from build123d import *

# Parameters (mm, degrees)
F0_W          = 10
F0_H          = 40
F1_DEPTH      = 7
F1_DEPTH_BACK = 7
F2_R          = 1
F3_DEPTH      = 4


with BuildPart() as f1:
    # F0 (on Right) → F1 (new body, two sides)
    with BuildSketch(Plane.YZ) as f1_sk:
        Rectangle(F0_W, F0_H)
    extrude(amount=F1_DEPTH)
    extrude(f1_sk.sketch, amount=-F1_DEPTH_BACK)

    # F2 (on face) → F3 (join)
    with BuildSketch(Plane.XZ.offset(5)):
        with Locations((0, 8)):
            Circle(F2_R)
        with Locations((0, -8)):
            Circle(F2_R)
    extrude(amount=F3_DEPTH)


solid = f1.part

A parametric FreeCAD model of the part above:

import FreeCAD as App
import Part
import Sketcher
from FreeCAD import Vector

doc = App.newDocument("Part")
params = doc.addObject("Spreadsheet::Sheet", "Params")
for row, (alias, value) in enumerate([
    ("sketch1_width", "10 mm"),
    ("sketch1_height", "40 mm"),
    ("pad1_length", "7 mm"),
    ("pad1_length2", "7 mm"),
    ("sketch2_diameter", "2 mm"),
    ("pad2_length", "4 mm"),
], start=1):
    params.set(f"A{row}", alias)
    params.set(f"B{row}", "=" + value)
    params.setAlias(f"B{row}", alias)

body = doc.addObject("PartDesign::Body", "Body")

# Sketch on YZ plane
sketch1 = body.newObject("Sketcher::SketchObject", "Sketch")
sketch1.AttachmentSupport = (doc.getObject("YZ_Plane"), [""])
sketch1.MapMode = "FlatFace"
sketch1.addGeometry([
    Part.LineSegment(Vector(-5, 20, 0), Vector(-5, -20, 0)),
    Part.LineSegment(Vector(-5, -20, 0), Vector(5, -20, 0)),
    Part.LineSegment(Vector(5, -20, 0), Vector(5, 20, 0)),
    Part.LineSegment(Vector(5, 20, 0), Vector(-5, 20, 0)),
], False)
sketch1.addConstraint([
    Sketcher.Constraint("Coincident", 0, 2, 1, 1),
    Sketcher.Constraint("Coincident", 1, 2, 2, 1),
    Sketcher.Constraint("Coincident", 2, 2, 3, 1),
    Sketcher.Constraint("Coincident", 3, 2, 0, 1),
    Sketcher.Constraint("Vertical", 0),
    Sketcher.Constraint("Horizontal", 1),
    Sketcher.Constraint("Vertical", 2),
    Sketcher.Constraint("Horizontal", 3),
    Sketcher.Constraint("Symmetric", 0, 2, 2, 2, -1, 1),
    Sketcher.Constraint("DistanceX", 1, 1, 1, 2, 10.0),
    Sketcher.Constraint("DistanceY", 0, 2, 0, 1, 40.0),
])
sketch1.setExpression("Constraints[9]", "Params.sketch1_width")
sketch1.setExpression("Constraints[10]", "Params.sketch1_height")
pad1 = body.newObject("PartDesign::Pad", "Pad")
pad1.Profile = sketch1
pad1.Type = "TwoLengths"
pad1.setExpression("Length", "Params.pad1_length")
pad1.setExpression("Length2", "Params.pad1_length2")

# Sketch on XZ plane
sketch2 = body.newObject("Sketcher::SketchObject", "Sketch001")
sketch2.AttachmentSupport = (doc.getObject("XZ_Plane"), [""])
sketch2.MapMode = "FlatFace"
sketch2.AttachmentOffset = App.Placement(Vector(0, 0, 5), App.Rotation())
sketch2.addGeometry([
    Part.Circle(Vector(0, 8, 0), Vector(0, 0, 1), 1),
    Part.Circle(Vector(0, -8, 0), Vector(0, 0, 1), 1),
], False)
sketch2.addConstraint([
    Sketcher.Constraint("Equal", 0, 1),
    Sketcher.Constraint("Symmetric", 0, 3, 1, 3, -1, 1),
    Sketcher.Constraint("PointOnObject", 0, 3, -2),
    Sketcher.Constraint("Diameter", 0, 2.0),
    Sketcher.Constraint("DistanceY", -1, 1, 0, 3, 8.0),
])
sketch2.setExpression("Constraints[3]", "Params.sketch2_diameter")
pad2 = body.newObject("PartDesign::Pad", "Pad001")
pad2.Profile = sketch2
pad2.setExpression("Length", "Params.pad2_length")

doc.recompute()
